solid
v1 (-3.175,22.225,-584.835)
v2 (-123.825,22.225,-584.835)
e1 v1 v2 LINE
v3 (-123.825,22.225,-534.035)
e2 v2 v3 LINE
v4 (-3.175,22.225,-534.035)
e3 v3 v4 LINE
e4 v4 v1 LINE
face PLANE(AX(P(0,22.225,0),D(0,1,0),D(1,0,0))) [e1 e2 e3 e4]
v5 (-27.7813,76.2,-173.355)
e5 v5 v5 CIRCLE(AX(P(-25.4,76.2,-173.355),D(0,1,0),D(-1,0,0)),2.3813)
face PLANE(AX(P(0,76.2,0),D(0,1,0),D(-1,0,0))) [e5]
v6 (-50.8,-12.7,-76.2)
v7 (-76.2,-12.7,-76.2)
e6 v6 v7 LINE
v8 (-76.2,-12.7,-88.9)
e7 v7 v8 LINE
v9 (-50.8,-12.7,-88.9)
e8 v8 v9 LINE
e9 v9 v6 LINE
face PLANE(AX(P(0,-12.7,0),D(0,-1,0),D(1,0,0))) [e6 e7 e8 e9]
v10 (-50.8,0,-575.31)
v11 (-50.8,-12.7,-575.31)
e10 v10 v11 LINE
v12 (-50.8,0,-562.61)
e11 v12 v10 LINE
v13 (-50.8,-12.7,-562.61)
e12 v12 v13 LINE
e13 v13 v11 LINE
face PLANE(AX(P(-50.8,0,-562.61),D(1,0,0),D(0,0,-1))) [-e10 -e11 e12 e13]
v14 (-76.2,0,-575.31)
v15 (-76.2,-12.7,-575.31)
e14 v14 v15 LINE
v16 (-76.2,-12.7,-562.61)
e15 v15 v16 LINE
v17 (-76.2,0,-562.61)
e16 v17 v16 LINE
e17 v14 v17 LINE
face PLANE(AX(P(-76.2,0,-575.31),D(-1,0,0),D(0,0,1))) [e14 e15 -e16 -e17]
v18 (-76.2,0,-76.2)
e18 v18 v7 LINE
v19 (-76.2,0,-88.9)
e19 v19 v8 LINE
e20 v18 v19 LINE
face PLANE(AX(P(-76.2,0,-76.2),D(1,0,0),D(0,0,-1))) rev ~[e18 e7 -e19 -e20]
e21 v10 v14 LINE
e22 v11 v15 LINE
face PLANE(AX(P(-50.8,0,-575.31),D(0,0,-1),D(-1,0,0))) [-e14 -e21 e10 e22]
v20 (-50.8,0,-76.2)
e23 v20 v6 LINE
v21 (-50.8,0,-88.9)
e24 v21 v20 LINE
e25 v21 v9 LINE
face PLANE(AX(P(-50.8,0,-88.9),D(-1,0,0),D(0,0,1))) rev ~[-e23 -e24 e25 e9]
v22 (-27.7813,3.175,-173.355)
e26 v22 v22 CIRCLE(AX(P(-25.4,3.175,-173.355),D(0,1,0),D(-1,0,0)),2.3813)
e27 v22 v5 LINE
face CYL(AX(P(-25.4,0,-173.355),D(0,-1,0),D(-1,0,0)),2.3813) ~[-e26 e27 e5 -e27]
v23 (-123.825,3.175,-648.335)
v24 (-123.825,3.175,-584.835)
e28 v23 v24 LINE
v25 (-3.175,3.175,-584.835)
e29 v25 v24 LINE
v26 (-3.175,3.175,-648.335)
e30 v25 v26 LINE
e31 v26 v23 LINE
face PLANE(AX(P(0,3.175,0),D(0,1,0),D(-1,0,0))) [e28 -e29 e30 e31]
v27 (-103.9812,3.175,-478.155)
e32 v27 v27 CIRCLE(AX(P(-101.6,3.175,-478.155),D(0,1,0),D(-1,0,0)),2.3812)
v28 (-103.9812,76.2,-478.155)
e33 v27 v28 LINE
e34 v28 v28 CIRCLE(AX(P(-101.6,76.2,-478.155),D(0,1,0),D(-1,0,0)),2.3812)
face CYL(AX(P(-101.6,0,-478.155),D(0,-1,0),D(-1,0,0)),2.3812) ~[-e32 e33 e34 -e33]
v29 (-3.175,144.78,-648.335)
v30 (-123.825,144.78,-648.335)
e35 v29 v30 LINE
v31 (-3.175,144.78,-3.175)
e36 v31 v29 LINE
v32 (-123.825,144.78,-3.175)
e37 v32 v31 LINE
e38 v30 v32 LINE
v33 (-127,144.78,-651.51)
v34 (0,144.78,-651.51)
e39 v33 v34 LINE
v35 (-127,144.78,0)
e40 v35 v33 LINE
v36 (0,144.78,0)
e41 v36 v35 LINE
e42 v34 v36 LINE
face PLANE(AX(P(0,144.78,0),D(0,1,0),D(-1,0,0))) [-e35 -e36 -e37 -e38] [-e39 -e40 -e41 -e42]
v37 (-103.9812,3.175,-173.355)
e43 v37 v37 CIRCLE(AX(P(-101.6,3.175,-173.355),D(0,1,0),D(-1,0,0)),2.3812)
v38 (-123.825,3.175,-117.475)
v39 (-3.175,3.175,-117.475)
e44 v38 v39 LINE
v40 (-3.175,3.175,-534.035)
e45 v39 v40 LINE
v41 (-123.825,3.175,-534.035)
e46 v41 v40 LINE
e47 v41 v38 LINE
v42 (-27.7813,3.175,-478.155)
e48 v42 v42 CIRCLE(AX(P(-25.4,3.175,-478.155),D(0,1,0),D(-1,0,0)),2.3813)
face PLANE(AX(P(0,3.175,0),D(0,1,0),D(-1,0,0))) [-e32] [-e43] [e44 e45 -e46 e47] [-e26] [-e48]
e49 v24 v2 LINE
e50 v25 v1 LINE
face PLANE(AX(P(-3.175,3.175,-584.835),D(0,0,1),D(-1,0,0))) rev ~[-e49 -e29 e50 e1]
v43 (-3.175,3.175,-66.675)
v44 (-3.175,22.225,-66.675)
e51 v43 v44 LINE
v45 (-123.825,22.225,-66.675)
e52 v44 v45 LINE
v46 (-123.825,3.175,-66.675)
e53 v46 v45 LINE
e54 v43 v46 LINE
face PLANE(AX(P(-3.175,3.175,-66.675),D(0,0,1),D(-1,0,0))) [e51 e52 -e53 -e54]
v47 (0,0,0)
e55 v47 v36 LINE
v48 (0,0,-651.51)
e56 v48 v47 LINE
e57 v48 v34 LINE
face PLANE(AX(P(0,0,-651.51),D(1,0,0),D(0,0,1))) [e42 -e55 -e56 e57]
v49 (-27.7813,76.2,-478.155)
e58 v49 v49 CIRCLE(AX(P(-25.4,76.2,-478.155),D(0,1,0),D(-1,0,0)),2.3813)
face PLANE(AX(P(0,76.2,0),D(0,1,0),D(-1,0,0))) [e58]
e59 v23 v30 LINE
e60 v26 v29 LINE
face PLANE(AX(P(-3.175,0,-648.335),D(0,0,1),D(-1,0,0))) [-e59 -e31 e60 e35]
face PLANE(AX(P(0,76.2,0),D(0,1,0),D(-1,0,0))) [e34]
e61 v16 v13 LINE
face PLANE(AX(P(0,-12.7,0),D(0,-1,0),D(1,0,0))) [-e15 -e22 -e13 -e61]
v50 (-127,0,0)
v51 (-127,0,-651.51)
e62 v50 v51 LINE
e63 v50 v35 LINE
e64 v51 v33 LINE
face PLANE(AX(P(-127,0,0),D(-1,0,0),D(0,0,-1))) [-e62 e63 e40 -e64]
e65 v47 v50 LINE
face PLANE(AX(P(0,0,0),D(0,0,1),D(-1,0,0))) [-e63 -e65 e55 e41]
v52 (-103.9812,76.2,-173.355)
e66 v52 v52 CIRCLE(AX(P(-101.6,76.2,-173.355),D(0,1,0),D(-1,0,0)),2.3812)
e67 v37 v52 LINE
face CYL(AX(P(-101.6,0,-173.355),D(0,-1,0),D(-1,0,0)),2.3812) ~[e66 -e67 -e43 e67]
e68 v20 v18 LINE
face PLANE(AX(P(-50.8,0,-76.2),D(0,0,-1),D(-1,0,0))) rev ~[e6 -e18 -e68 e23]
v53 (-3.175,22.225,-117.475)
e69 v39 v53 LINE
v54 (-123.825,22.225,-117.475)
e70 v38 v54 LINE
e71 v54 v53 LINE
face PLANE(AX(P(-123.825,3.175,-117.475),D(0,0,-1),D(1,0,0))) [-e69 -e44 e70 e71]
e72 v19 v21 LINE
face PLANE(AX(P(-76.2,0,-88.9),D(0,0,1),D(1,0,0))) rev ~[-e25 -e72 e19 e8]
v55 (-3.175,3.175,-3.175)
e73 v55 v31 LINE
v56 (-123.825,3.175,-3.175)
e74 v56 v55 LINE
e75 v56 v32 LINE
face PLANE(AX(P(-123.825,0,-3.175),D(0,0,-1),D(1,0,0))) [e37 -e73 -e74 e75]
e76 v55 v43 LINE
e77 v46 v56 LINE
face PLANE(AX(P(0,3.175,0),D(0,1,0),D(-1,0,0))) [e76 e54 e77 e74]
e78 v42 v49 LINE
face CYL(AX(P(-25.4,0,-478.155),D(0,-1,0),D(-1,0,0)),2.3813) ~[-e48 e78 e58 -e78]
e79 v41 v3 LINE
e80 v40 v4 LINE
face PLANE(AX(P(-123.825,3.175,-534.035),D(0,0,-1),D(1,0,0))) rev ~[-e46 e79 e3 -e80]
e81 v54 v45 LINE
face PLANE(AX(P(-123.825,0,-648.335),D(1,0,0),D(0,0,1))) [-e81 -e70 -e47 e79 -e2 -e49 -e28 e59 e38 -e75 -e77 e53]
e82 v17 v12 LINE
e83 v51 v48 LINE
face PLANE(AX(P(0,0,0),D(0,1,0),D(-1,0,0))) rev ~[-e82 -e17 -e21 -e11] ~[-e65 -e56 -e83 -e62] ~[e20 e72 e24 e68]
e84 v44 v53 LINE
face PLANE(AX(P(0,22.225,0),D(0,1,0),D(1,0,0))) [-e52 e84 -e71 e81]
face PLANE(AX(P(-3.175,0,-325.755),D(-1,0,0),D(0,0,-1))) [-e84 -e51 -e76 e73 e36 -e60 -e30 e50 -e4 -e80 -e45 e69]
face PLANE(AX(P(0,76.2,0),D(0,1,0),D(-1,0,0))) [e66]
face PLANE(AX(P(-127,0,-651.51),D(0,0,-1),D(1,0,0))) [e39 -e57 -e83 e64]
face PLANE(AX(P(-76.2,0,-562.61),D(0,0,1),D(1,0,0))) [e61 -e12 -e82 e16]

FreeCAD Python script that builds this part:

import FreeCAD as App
import Part
import Sketcher
Q = App.Units.Quantity


def add_polygon(sketch, points):
    """Adds a closed chain of lines whose ends are joined by coincident constraints."""
    first, n = sketch.GeometryCount, len(points)
    for a, b in zip(points, points[1:] + points[:1]):
        sketch.addGeometry(Part.LineSegment(App.Vector(*a, 0), App.Vector(*b, 0)), False)
    for i in range(n):
        sketch.addConstraint(Sketcher.Constraint("Coincident", first + i, 2, first + (i + 1) % n, 1))

doc = App.newDocument("Part")
body = doc.addObject("PartDesign::Body", "Body")

sketch1 = body.newObject("Sketcher::SketchObject", "Sketch")
sketch1.AttachmentSupport = (doc.getObject("XZ_Plane"), [""])
sketch1.MapMode = "FlatFace"
add_polygon(sketch1, [(-123.8, -648.3), (-123.8, -3.2), (-3.2, -3.2), (-3.2, -648.3)])
sketch1.addGeometry(Part.Circle(App.Vector(-25.4, -478.2, 0), App.Vector(0, 0, 1), 2.4), False)
sketch1.addGeometry(Part.Circle(App.Vector(-101.6, -478.2, 0), App.Vector(0, 0, 1), 2.4), False)
sketch1.addGeometry(Part.Circle(App.Vector(-25.4, -173.4, 0), App.Vector(0, 0, 1), 2.4), False)
sketch1.addGeometry(Part.Circle(App.Vector(-101.6, -173.4, 0), App.Vector(0, 0, 1), 2.4), False)
sketch1.addConstraint(Sketcher.Constraint("Vertical", 0))
sketch1.addConstraint(Sketcher.Constraint("Horizontal", 1))
sketch1.addConstraint(Sketcher.Constraint("Vertical", 2))
sketch1.addConstraint(Sketcher.Constraint("Horizontal", 3))
sketch1.addConstraint(Sketcher.Constraint("Equal", 4, 5))
sketch1.addConstraint(Sketcher.Constraint("Equal", 5, 6))
sketch1.addConstraint(Sketcher.Constraint("Equal", 6, 7))
sketch1.addConstraint(Sketcher.Constraint("Horizontal", 4, 3, 5, 3))
sketch1.addConstraint(Sketcher.Constraint("Horizontal", 6, 3, 7, 3))
sketch1.addConstraint(Sketcher.Constraint("Vertical", 4, 3, 6, 3))
sketch1.addConstraint(Sketcher.Constraint("Vertical", 5, 3, 7, 3))
sketch1.addConstraint(Sketcher.Constraint("Diameter", 4, Q("0.1875 in")))
sketch1.addConstraint(Sketcher.Constraint("DistanceX", 4, 3, -1, 1, Q("1 in")))
sketch1.addConstraint(Sketcher.Constraint("DistanceX", 5, 3, 4, 3, Q("3 in")))
sketch1.addConstraint(Sketcher.Constraint("DistanceY", 0, 1, 0, 2, Q("25.4 in")))
sketch1.addConstraint(Sketcher.Constraint("DistanceY", 0, 2, -1, 1, Q("0.125 in")))
sketch1.addConstraint(Sketcher.Constraint("DistanceX", 1, 2, -1, 1, Q("0.125 in")))
sketch1.addConstraint(Sketcher.Constraint("DistanceY", 4, 3, 6, 3, Q("12 in")))
sketch1.addConstraint(Sketcher.Constraint("DistanceX", 1, 1, 1, 2, Q("4.75 in")))
sketch1.addConstraint(Sketcher.Constraint("DistanceY", 7, 3, 0, 2, Q("6.7 in")))
pad1 = body.newObject("PartDesign::Pad", "Pad")
pad1.Profile = sketch1
pad1.Length = Q("0.125 in")
pad1.Reversed = True

sketch2 = body.newObject("Sketcher::SketchObject", "Sketch001")
sketch2.AttachmentSupport = (doc.getObject("XZ_Plane"), [""])
sketch2.MapMode = "FlatFace"
add_polygon(sketch2, [(-127, 0), (0, 0), (0, -652), (-127, -652)])
add_polygon(sketch2, [(-3, -3), (-124, -3), (-124, -648), (-3, -648)])
sketch2.addConstraint(Sketcher.Constraint("Horizontal", 0))
sketch2.addConstraint(Sketcher.Constraint("Vertical", 1))
sketch2.addConstraint(Sketcher.Constraint("Horizontal", 2))
sketch2.addConstraint(Sketcher.Constraint("Vertical", 3))
sketch2.addConstraint(Sketcher.Constraint("Horizontal", 4))
sketch2.addConstraint(Sketcher.Constraint("Vertical", 5))
sketch2.addConstraint(Sketcher.Constraint("Horizontal", 6))
sketch2.addConstraint(Sketcher.Constraint("Vertical", 7))
sketch2.addConstraint(Sketcher.Constraint("Coincident", 0, 2, -1, 1))
sketch2.addConstraint(Sketcher.Constraint("DistanceX", 0, 1, 0, 2, Q("5 in")))
sketch2.addConstraint(Sketcher.Constraint("DistanceY", 1, 2, 1, 1, Q("25.65 in")))
sketch2.addConstraint(Sketcher.Constraint("DistanceY", 5, 2, 5, 1, Q("25.4 in")))
sketch2.addConstraint(Sketcher.Constraint("DistanceY", 4, 2, -1, 1, Q("0.125 in")))
sketch2.addConstraint(Sketcher.Constraint("DistanceX", 6, 2, -1, 1, Q("0.125 in")))
sketch2.addConstraint(Sketcher.Constraint("DistanceX", 3, 2, 4, 2, Q("0.125 in")))
pad2 = body.newObject("PartDesign::Pad", "Pad001")
pad2.Profile = sketch2
pad2.Length = Q("5.7 in")
pad2.Reversed = True

sketch3 = body.newObject("Sketcher::SketchObject", "Sketch002")
sketch3.AttachmentSupport = (doc.getObject("XZ_Plane"), [""])
sketch3.MapMode = "FlatFace"
add_polygon(sketch3, [(-51, -89), (-51, -76), (-76, -76), (-76, -89)])
add_polygon(sketch3, [(-76, -575), (-51, -575), (-51, -563), (-76, -563)])
sketch3.addConstraint(Sketcher.Constraint("Vertical", 0))
sketch3.addConstraint(Sketcher.Constraint("Horizontal", 1))
sketch3.addConstraint(Sketcher.Constraint("Vertical", 2))
sketch3.addConstraint(Sketcher.Constraint("Horizontal", 3))
sketch3.addConstraint(Sketcher.Constraint("Horizontal", 4))
sketch3.addConstraint(Sketcher.Constraint("Vertical", 5))
sketch3.addConstraint(Sketcher.Constraint("Horizontal", 6))
sketch3.addConstraint(Sketcher.Constraint("Vertical", 7))
sketch3.addConstraint(Sketcher.Constraint("Vertical", 3, 2, 4, 2))
sketch3.addConstraint(Sketcher.Constraint("Vertical", 2, 2, 6, 2))
sketch3.addConstraint(Sketcher.Constraint("Equal", 2, 5))
sketch3.addConstraint(Sketcher.Constraint("DistanceX", 1, 2, 1, 1, Q("1 in")))
sketch3.addConstraint(Sketcher.Constraint("DistanceY", 0, 1, 0, 2, Q("0.5 in")))
sketch3.addConstraint(Sketcher.Constraint("DistanceX", 0, 2, -1, 1, Q("2 in")))
sketch3.addConstraint(Sketcher.Constraint("DistanceY", 0, 2, -1, 1, Q("3 in")))
sketch3.addConstraint(Sketcher.Constraint("DistanceY", 4, 2, -1, 1, Q("22.65 in")))
pad3 = body.newObject("PartDesign::Pad", "Pad002")
pad3.Profile = sketch3
pad3.Length = Q("0.5 in")

sketch4 = body.newObject("Sketcher::SketchObject", "Sketch003")
sketch4.AttachmentSupport = (doc.getObject("XZ_Plane"), [""])
sketch4.MapMode = "FlatFace"
sketch4.addGeometry(Part.Circle(App.Vector(-101.6, -478.2, 0), App.Vector(0, 0, 1), 2.4), False)
sketch4.addGeometry(Part.Circle(App.Vector(-25.4, -478.2, 0), App.Vector(0, 0, 1), 2.4), False)
sketch4.addGeometry(Part.Circle(App.Vector(-101.6, -173.4, 0), App.Vector(0, 0, 1), 2.4), False)
sketch4.addGeometry(Part.Circle(App.Vector(-25.4, -173.4, 0), App.Vector(0, 0, 1), 2.4), False)
sketch4.addConstraint(Sketcher.Constraint("Equal", 0, 1))
sketch4.addConstraint(Sketcher.Constraint("Equal", 1, 2))
sketch4.addConstraint(Sketcher.Constraint("Equal", 2, 3))
sketch4.addConstraint(Sketcher.Constraint("Horizontal", 0, 3, 1, 3))
sketch4.addConstraint(Sketcher.Constraint("Horizontal", 2, 3, 3, 3))
sketch4.addConstraint(Sketcher.Constraint("Vertical", 0, 3, 2, 3))
sketch4.addConstraint(Sketcher.Constraint("Vertical", 1, 3, 3, 3))
sketch4.addConstraint(Sketcher.Constraint("Diameter", 0, Q("0.1875 in")))
sketch4.addConstraint(Sketcher.Constraint("DistanceX", 1, 3, -1, 1, Q("1 in")))
sketch4.addConstraint(Sketcher.Constraint("DistanceX", 0, 3, 1, 3, Q("3 in")))
sketch4.addConstraint(Sketcher.Constraint("DistanceY", 0, 3, 2, 3, Q("12 in")))
sketch4.addConstraint(Sketcher.Constraint("DistanceY", 0, 3, -1, 1, Q("18.825 in")))
pad4 = body.newObject("PartDesign::Pad", "Pad003")
pad4.Profile = sketch4
pad4.Length = Q("3 in")
pad4.Reversed = True

sketch5 = body.newObject("Sketcher::SketchObject", "Sketch004")
sketch5.AttachmentSupport = (doc.getObject("XZ_Plane"), [""])
sketch5.MapMode = "FlatFace"
sketch5.AttachmentOffset = App.Placement(App.Vector(0, 0, -0.125 * 25.4), App.Rotation())
add_polygon(sketch5, [(-124, -67), (-3, -67), (-3, -117), (-124, -117)])
add_polygon(sketch5, [(-124, -534), (-3, -534), (-3, -585), (-124, -585)])
sketch5.addConstraint(Sketcher.Constraint("Horizontal", 0))
sketch5.addConstraint(Sketcher.Constraint("Vertical", 1))
sketch5.addConstraint(Sketcher.Constraint("Horizontal", 2))
sketch5.addConstraint(Sketcher.Constraint("Vertical", 3))
sketch5.addConstraint(Sketcher.Constraint("Horizontal", 4))
sketch5.addConstraint(Sketcher.Constraint("Vertical", 5))
sketch5.addConstraint(Sketcher.Constraint("Horizontal", 6))
sketch5.addConstraint(Sketcher.Constraint("Vertical", 7))
sketch5.addConstraint(Sketcher.Constraint("Vertical", 1, 2, 4, 2))
sketch5.addConstraint(Sketcher.Constraint("Vertical", 3, 2, 6, 2))
sketch5.addConstraint(Sketcher.Constraint("Equal", 3, 5))
sketch5.addConstraint(Sketcher.Constraint("DistanceY", 1, 2, 1, 1, Q("2 in")))
sketch5.addConstraint(Sketcher.Constraint("DistanceX", 0, 1, 0, 2, Q("4.75 in")))
sketch5.addConstraint(Sketcher.Constraint("DistanceY", 4, 2, 1, 2, Q("16.4 in")))
sketch5.addConstraint(Sketcher.Constraint("DistanceX", 0, 2, -1, 1, Q("0.125 in")))
sketch5.addConstraint(Sketcher.Constraint("DistanceY", 0, 2, -1, 1, Q("2.625 in")))
pad5 = body.newObject("PartDesign::Pad", "Pad004")
pad5.Profile = sketch5
pad5.Length = Q("0.75 in")
pad5.Reversed = True

doc.recompute()
